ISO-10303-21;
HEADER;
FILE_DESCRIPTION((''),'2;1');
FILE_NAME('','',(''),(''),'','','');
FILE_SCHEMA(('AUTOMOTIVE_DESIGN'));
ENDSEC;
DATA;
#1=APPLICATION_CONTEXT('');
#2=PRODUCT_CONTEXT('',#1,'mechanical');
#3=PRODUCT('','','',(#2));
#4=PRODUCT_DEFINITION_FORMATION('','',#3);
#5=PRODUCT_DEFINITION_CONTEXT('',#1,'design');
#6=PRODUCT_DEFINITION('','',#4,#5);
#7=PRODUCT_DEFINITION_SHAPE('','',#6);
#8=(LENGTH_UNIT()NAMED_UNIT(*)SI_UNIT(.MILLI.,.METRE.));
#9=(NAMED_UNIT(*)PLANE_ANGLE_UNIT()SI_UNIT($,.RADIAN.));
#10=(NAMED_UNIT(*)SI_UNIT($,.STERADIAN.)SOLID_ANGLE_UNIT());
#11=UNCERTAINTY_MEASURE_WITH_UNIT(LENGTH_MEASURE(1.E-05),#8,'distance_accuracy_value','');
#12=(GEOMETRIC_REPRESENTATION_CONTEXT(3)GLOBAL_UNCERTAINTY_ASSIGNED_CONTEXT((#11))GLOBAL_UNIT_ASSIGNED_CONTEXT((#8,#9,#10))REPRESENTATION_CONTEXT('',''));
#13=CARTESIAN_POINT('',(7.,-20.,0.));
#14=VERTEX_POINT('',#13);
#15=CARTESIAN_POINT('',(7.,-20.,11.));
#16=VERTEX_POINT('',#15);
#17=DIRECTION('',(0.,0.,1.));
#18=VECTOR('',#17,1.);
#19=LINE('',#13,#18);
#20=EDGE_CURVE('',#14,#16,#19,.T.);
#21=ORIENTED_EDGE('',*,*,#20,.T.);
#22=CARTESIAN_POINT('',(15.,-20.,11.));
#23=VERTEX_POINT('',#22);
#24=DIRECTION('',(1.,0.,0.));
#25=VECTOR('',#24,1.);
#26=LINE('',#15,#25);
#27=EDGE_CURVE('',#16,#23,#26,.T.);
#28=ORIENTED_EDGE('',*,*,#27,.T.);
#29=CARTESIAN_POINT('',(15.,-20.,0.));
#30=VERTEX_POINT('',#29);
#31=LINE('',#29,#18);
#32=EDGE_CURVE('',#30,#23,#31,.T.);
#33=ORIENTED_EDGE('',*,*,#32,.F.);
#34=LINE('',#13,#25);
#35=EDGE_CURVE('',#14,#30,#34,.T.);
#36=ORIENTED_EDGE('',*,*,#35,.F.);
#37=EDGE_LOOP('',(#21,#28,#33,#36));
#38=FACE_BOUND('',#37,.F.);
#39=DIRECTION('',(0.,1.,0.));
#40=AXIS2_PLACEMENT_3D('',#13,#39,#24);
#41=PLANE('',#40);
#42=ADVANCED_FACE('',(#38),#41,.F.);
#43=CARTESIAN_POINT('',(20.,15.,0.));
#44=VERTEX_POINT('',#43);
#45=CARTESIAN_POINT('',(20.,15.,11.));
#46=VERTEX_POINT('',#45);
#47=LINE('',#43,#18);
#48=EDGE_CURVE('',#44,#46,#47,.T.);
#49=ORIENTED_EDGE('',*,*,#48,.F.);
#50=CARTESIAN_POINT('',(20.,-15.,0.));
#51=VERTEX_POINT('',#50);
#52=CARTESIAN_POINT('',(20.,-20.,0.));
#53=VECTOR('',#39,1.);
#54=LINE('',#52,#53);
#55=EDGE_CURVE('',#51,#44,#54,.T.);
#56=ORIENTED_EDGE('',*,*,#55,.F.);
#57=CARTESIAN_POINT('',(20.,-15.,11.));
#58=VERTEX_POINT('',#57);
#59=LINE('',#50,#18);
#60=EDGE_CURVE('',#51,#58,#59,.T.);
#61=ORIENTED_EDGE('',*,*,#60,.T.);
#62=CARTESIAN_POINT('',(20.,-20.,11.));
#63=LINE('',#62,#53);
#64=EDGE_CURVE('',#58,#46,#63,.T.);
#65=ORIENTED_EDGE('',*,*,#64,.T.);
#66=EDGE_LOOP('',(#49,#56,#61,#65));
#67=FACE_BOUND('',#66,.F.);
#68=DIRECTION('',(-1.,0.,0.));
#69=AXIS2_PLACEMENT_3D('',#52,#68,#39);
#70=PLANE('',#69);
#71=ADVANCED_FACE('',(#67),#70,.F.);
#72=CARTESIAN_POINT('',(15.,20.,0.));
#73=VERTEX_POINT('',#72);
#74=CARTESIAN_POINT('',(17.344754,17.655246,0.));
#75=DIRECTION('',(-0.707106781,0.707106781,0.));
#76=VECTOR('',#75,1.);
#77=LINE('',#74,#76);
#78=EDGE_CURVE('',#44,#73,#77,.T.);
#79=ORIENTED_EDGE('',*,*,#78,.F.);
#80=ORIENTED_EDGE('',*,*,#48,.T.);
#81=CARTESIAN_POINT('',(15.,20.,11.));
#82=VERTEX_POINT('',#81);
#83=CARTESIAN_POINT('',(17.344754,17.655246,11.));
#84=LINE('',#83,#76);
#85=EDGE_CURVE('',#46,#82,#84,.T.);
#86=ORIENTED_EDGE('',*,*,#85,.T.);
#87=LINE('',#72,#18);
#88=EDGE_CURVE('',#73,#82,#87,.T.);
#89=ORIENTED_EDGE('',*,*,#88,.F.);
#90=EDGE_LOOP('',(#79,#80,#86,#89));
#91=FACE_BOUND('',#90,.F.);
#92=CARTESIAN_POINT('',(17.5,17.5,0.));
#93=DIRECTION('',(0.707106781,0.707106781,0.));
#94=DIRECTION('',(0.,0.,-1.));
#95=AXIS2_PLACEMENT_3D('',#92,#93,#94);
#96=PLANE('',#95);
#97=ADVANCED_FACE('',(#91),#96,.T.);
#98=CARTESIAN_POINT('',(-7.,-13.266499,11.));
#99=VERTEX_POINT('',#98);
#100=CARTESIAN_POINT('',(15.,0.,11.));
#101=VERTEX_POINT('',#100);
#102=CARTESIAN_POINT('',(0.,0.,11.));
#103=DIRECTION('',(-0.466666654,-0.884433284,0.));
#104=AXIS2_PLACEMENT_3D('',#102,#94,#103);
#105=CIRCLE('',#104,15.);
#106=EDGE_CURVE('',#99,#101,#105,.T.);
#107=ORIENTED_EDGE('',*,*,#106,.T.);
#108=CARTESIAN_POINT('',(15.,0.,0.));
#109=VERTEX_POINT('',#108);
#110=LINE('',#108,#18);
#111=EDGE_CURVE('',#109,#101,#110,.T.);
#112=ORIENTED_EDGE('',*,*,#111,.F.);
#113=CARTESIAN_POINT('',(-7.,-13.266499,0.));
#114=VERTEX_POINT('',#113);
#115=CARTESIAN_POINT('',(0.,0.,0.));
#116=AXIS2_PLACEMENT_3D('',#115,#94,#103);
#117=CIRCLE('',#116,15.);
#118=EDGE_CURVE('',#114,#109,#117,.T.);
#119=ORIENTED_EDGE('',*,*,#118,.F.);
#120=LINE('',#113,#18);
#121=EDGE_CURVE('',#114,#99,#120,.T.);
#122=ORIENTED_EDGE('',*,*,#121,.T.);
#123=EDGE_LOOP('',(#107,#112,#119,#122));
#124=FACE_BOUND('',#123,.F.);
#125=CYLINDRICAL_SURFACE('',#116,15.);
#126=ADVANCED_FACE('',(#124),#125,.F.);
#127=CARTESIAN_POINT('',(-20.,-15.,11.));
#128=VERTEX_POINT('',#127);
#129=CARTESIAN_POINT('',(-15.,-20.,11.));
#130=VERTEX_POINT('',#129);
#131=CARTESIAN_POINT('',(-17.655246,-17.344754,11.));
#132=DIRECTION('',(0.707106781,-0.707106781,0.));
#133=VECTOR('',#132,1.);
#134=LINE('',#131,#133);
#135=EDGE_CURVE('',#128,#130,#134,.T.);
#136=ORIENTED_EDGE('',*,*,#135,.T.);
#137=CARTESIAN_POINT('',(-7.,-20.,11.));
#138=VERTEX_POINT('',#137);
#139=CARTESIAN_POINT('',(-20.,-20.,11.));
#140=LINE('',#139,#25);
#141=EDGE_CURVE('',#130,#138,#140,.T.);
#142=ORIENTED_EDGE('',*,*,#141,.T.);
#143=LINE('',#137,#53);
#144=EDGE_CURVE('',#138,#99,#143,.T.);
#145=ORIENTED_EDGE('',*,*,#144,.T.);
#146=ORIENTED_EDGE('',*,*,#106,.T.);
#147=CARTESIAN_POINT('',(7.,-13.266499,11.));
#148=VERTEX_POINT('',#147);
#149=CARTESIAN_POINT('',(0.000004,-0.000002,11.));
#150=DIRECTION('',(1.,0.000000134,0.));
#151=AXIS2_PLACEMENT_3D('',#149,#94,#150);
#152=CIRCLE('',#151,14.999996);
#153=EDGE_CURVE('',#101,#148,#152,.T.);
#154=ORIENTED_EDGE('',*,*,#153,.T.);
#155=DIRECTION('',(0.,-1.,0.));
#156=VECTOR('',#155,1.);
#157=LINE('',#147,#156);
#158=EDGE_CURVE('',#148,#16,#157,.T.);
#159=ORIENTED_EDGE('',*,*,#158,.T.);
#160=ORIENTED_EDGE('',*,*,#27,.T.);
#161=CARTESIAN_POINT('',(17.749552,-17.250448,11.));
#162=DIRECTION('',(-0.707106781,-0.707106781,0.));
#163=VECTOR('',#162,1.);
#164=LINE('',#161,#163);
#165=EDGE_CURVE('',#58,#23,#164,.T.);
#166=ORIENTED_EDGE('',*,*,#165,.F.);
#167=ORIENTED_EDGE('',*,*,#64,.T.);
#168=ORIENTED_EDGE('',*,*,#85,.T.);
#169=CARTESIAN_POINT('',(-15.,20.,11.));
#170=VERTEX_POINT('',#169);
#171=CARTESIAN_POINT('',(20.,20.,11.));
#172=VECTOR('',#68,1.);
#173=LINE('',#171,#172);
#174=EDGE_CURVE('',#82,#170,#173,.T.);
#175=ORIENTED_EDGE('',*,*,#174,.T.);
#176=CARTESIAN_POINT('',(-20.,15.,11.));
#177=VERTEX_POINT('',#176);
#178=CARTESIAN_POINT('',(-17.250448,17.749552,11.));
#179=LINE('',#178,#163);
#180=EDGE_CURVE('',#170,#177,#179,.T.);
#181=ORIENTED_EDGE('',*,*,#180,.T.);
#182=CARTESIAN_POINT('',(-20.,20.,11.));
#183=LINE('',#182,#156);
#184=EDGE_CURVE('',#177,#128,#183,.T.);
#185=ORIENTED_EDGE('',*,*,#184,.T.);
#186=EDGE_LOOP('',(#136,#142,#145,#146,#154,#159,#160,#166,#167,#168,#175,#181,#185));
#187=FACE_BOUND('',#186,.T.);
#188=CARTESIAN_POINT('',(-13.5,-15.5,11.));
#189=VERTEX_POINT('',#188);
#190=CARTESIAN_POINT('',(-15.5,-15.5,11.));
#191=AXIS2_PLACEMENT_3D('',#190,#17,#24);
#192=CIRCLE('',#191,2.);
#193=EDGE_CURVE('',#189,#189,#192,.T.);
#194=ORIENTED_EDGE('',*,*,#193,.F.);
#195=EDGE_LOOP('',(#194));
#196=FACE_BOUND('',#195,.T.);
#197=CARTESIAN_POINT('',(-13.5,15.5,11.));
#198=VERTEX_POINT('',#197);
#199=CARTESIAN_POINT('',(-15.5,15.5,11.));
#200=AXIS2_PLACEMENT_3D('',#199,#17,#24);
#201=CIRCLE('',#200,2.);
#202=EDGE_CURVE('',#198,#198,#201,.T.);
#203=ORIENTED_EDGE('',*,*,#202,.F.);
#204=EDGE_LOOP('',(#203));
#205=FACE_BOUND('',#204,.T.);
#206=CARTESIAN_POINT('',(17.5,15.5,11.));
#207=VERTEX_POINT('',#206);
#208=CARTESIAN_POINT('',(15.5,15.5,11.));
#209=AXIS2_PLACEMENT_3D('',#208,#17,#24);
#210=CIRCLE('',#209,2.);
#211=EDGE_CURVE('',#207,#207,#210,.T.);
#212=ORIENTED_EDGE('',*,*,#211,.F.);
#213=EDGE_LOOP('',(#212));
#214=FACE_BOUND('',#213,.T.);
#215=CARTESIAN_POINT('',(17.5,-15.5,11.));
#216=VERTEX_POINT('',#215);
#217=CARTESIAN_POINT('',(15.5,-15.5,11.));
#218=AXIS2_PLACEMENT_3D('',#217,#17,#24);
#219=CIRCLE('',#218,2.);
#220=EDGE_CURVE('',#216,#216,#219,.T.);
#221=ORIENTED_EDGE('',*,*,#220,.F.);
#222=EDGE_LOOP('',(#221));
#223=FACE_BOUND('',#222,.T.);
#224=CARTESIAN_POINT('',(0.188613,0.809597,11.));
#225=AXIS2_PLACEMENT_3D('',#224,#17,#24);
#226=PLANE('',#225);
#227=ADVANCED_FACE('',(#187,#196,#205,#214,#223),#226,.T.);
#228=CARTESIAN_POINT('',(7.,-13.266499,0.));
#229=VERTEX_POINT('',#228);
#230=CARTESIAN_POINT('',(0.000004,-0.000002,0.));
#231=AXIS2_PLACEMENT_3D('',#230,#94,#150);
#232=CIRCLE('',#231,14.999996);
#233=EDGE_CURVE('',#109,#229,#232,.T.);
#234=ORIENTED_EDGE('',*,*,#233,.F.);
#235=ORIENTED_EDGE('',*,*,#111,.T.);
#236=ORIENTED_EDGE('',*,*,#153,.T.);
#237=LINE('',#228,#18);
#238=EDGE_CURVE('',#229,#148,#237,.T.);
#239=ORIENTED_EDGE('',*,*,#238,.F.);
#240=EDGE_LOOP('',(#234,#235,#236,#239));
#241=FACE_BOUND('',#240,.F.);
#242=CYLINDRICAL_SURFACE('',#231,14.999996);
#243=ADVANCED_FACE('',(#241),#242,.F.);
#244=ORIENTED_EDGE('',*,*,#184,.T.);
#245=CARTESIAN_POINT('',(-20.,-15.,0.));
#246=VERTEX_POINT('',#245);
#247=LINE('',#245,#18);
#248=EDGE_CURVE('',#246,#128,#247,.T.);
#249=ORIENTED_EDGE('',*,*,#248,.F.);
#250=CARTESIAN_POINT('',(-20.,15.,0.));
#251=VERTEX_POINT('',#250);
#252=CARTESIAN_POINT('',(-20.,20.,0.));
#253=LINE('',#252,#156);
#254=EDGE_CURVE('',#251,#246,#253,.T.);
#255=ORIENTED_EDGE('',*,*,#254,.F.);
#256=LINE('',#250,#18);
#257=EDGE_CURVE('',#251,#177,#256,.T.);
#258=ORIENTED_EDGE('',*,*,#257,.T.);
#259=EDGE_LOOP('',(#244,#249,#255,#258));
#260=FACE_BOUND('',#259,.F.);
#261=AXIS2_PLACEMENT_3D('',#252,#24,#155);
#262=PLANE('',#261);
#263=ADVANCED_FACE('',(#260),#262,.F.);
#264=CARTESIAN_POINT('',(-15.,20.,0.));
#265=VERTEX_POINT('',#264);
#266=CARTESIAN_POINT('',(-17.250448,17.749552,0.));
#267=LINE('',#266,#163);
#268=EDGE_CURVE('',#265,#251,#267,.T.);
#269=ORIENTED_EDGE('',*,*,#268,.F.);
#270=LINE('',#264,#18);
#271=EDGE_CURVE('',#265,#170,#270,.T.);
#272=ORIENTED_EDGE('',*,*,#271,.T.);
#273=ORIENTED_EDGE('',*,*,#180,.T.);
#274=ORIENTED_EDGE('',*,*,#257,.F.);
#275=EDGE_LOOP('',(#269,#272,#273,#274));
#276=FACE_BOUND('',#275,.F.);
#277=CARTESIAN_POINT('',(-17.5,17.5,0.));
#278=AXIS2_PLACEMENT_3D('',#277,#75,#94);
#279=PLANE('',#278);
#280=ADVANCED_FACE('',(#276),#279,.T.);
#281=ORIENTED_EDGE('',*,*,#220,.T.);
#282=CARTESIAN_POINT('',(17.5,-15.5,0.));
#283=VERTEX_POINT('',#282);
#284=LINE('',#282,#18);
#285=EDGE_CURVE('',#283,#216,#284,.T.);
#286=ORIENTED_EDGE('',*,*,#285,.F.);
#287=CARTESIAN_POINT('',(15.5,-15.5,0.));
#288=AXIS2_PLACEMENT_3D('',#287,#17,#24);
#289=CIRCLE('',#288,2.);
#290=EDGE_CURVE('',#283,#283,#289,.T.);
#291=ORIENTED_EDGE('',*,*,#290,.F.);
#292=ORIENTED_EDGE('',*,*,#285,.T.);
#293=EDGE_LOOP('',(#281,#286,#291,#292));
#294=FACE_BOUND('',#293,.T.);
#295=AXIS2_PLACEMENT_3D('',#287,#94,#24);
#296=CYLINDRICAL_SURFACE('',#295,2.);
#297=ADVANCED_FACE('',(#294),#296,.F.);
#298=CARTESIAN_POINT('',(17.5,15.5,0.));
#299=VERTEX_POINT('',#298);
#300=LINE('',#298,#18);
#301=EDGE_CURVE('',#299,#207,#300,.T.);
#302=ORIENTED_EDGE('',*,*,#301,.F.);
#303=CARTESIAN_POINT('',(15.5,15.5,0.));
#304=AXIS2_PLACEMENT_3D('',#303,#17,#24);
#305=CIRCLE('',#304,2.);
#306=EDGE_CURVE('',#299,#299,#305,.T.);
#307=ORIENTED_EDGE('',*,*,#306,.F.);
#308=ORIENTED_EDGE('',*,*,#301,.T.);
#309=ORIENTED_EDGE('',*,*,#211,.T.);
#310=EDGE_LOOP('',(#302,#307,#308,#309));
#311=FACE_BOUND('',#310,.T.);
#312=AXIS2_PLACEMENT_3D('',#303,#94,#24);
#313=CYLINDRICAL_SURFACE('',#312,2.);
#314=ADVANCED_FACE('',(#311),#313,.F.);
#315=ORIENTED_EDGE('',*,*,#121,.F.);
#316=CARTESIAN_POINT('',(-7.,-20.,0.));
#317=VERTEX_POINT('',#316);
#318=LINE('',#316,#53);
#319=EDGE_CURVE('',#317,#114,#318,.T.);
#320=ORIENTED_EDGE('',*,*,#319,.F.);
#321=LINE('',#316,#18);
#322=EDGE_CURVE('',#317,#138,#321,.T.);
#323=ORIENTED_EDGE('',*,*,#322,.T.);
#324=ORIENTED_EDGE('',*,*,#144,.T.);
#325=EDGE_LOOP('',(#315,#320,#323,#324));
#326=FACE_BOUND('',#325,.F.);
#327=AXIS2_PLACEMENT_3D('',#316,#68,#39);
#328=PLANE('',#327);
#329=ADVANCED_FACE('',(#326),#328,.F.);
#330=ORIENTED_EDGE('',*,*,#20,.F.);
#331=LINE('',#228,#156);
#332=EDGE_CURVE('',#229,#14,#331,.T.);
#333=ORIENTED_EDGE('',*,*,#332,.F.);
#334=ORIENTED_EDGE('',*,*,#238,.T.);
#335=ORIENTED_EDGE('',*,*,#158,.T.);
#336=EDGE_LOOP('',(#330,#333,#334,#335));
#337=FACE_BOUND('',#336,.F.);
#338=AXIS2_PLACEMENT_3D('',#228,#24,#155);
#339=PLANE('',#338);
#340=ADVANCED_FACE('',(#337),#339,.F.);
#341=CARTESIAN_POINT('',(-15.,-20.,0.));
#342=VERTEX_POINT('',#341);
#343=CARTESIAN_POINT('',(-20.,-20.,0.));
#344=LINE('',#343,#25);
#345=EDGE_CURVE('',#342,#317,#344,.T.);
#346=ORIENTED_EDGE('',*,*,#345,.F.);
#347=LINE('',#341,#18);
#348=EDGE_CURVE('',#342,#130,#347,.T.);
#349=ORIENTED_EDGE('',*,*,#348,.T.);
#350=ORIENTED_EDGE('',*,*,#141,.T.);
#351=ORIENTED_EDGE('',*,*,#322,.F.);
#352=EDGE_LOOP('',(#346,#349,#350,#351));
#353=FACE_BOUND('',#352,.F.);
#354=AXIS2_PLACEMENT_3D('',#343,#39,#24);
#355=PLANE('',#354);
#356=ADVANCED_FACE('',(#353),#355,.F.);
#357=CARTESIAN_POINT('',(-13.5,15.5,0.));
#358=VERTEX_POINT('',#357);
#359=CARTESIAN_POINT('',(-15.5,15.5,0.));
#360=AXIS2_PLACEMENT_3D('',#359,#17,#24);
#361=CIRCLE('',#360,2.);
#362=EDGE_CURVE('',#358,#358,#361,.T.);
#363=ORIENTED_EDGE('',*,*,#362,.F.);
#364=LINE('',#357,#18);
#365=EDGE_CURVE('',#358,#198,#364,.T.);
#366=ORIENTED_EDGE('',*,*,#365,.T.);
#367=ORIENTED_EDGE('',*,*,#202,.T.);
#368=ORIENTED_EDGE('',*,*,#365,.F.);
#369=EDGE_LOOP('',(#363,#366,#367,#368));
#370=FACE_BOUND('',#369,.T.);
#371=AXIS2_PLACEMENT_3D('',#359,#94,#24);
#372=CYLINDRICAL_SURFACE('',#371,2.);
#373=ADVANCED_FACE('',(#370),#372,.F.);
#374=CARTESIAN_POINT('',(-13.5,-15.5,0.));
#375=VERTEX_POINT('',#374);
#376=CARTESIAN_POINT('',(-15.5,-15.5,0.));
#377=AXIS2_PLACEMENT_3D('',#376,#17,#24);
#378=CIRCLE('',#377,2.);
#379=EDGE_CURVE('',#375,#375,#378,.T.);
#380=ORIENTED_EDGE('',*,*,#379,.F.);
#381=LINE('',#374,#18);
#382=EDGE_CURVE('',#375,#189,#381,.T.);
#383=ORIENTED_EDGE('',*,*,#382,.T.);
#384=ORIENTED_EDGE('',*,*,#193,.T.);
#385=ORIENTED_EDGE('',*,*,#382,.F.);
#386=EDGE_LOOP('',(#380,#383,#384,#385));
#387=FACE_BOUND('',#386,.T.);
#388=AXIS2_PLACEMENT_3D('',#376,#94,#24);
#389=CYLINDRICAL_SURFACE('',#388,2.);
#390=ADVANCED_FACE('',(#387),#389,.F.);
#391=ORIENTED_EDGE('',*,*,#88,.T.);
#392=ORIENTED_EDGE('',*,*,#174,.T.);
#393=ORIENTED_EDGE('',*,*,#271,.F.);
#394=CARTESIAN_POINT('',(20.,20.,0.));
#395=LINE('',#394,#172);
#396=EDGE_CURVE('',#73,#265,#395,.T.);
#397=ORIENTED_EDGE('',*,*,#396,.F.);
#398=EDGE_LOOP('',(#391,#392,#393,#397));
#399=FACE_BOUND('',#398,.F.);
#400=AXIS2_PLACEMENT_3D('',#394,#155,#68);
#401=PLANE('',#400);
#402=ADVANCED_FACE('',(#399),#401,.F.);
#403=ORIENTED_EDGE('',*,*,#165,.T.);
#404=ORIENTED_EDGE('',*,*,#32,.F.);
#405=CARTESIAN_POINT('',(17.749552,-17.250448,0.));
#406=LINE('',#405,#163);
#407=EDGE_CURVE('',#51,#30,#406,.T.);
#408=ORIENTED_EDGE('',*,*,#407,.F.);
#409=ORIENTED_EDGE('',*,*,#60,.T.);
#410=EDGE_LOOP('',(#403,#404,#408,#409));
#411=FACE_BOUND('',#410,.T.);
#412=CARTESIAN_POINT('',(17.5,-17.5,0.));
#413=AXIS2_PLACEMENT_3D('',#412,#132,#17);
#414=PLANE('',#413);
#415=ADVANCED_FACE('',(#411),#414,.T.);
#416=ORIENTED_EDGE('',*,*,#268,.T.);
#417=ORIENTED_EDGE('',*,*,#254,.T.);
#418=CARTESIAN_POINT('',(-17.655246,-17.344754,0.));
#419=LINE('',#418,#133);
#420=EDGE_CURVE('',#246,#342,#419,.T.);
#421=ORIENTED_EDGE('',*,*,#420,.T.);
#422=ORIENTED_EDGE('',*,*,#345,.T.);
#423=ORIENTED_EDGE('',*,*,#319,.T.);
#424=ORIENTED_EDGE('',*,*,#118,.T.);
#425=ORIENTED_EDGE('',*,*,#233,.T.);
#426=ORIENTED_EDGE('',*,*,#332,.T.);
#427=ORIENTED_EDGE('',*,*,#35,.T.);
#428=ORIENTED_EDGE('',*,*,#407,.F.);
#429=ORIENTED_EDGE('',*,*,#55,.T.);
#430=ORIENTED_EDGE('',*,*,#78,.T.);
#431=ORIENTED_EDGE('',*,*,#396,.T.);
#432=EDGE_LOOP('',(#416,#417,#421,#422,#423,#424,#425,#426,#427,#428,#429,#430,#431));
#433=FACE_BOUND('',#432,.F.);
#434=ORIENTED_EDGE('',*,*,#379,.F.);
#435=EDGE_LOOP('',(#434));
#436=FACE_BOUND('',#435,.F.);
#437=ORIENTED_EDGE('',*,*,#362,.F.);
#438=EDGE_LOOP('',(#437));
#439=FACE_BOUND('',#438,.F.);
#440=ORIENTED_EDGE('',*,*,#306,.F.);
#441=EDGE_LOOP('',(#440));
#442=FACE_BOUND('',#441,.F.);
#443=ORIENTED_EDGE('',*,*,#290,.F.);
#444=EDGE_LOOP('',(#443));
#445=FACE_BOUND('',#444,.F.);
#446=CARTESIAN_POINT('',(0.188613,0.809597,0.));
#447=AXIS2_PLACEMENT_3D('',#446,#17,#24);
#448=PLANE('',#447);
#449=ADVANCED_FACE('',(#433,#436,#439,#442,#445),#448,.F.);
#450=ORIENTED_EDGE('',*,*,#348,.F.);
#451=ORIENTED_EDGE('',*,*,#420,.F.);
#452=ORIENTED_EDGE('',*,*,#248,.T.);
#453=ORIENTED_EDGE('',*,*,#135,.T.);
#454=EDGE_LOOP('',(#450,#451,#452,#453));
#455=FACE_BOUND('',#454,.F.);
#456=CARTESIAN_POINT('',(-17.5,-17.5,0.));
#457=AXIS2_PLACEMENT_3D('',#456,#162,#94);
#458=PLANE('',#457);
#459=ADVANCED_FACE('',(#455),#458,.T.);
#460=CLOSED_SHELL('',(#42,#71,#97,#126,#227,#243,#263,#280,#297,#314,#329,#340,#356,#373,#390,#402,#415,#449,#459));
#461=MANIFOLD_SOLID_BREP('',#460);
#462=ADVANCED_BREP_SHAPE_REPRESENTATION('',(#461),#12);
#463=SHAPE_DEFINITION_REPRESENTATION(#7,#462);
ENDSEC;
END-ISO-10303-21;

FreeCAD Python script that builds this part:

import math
import FreeCAD as App
import Part
import Sketcher
Q = App.Units.Quantity


def edges_at(feature, points):
    """Names of the edges that pass closest to the given points."""
    edges = feature.Shape.Edges
    near = lambda p: min(range(len(edges)), key=lambda i: edges[i].distToShape(Part.Vertex(*p))[0])
    return sorted({f"Edge{near(p) + 1}" for p in points})

doc = App.newDocument("Part")
body = doc.addObject("PartDesign::Body", "Body")

# Sketch on XY plane
sketch1 = doc.addObject("Sketcher::SketchObject", "Sketch")
body.addObject(sketch1)
sketch1.AttachmentSupport = (doc.XY_Plane, [""])
sketch1.MapMode = "FlatFace"
sketch1.addGeometry(Part.LineSegment(App.Vector(20, -20, 0), App.Vector(20, 20, 0)), False)
sketch1.addGeometry(Part.LineSegment(App.Vector(20, 20, 0), App.Vector(-20, 20, 0)), False)
sketch1.addGeometry(Part.LineSegment(App.Vector(-20, 20, 0), App.Vector(-20, -20, 0)), False)
sketch1.addGeometry(Part.LineSegment(App.Vector(-20, -20, 0), App.Vector(-7, -20, 0)), False)
sketch1.addGeometry(Part.LineSegment(App.Vector(-7, -20, 0), App.Vector(-7, -13.3, 0)), False)
sketch1.addGeometry(Part.ArcOfCircle(Part.Circle(App.Vector(0, 0, 0), App.Vector(0, 0, 1), 15), math.radians(0), math.radians(242)), False)
sketch1.addGeometry(Part.ArcOfCircle(Part.Circle(App.Vector(0, 0, 0), App.Vector(0, 0, 1), 15), math.radians(-62), math.radians(0)), False)
sketch1.addGeometry(Part.LineSegment(App.Vector(7, -13.3, 0), App.Vector(7, -20, 0)), False)
sketch1.addGeometry(Part.LineSegment(App.Vector(7, -20, 0), App.Vector(20, -20, 0)), False)
sketch1.addGeometry(Part.Circle(App.Vector(-15.5, -15.5, 0), App.Vector(0, 0, 1), 2), False)
sketch1.addGeometry(Part.Circle(App.Vector(15.5, -15.5, 0), App.Vector(0, 0, 1), 2), False)
sketch1.addGeometry(Part.Circle(App.Vector(-15.5, 15.5, 0), App.Vector(0, 0, 1), 2), False)
sketch1.addGeometry(Part.Circle(App.Vector(15.5, 15.5, 0), App.Vector(0, 0, 1), 2), False)
sketch1.addConstraint(Sketcher.Constraint("Coincident", 0, 2, 1, 1))
sketch1.addConstraint(Sketcher.Constraint("Coincident", 1, 2, 2, 1))
sketch1.addConstraint(Sketcher.Constraint("Coincident", 2, 2, 3, 1))
sketch1.addConstraint(Sketcher.Constraint("Coincident", 3, 2, 4, 1))
sketch1.addConstraint(Sketcher.Constraint("Coincident", 4, 2, 5, 2))
sketch1.addConstraint(Sketcher.Constraint("Tangent", 5, 1, 6, 2))
sketch1.addConstraint(Sketcher.Constraint("Coincident", 6, 1, 7, 1))
sketch1.addConstraint(Sketcher.Constraint("Coincident", 7, 2, 8, 1))
sketch1.addConstraint(Sketcher.Constraint("Coincident", 8, 2, 0, 1))
sketch1.addConstraint(Sketcher.Constraint("Vertical", 0))
sketch1.addConstraint(Sketcher.Constraint("Horizontal", 1))
sketch1.addConstraint(Sketcher.Constraint("Vertical", 2))
sketch1.addConstraint(Sketcher.Constraint("Horizontal", 3))
sketch1.addConstraint(Sketcher.Constraint("Vertical", 4))
sketch1.addConstraint(Sketcher.Constraint("Vertical", 7))
sketch1.addConstraint(Sketcher.Constraint("Horizontal", 8))
sketch1.addConstraint(Sketcher.Constraint("Coincident", 5, 3, -1, 1))
sketch1.addConstraint(Sketcher.Constraint("Equal", 9, 10))
sketch1.addConstraint(Sketcher.Constraint("Equal", 10, 11))
sketch1.addConstraint(Sketcher.Constraint("Equal", 11, 12))
sketch1.addConstraint(Sketcher.Constraint("Symmetric", 10, 3, 11, 3, -1, 1))
sketch1.addConstraint(Sketcher.Constraint("Symmetric", 9, 3, 12, 3, -1, 1))
sketch1.addConstraint(Sketcher.Constraint("Symmetric", 0, 2, 2, 2, -1, 1))
sketch1.addConstraint(Sketcher.Constraint("Symmetric", 9, 3, 10, 3, -2))
sketch1.addConstraint(Sketcher.Constraint("Symmetric", 4, 2, 6, 1, -2))
sketch1.addConstraint(Sketcher.Constraint("PointOnObject", 5, 1, -1))
sketch1.addConstraint(Sketcher.Constraint("Horizontal", 3, 2, 7, 2))
sketch1.addConstraint(Sketcher.Constraint("Equal", 1, 0))
sketch1.addConstraint(Sketcher.Constraint("Diameter", 9, Q("4 mm")))
sketch1.addConstraint(Sketcher.Constraint("Radius", 5, Q("15 mm")))
sketch1.addConstraint(Sketcher.Constraint("DistanceX", 1, 2, 1, 1, Q("40 mm")))
sketch1.addConstraint(Sketcher.Constraint("DistanceX", 3, 1, 3, 2, Q("13 mm")))
sketch1.addConstraint(Sketcher.Constraint("DistanceX", 9, 3, 10, 3, Q("31 mm")))
sketch1.addConstraint(Sketcher.Constraint("DistanceY", 9, 3, 11, 3, Q("31 mm")))
pad1 = doc.addObject("PartDesign::Pad", "Pad")
body.addObject(pad1)
pad1.Profile = sketch1
pad1.Length = 11
doc.recompute()

chamfer = doc.addObject("PartDesign::Chamfer", "Chamfer")
body.addObject(chamfer)
chamfer.Base = (pad1, edges_at(pad1, [
    (-20, -20, 5.5),
    (-20, 20, 5.5),
    (20, 20, 5.5),
    (20, -20, 5.5),
]))
chamfer.Size = 5

doc.recompute()
